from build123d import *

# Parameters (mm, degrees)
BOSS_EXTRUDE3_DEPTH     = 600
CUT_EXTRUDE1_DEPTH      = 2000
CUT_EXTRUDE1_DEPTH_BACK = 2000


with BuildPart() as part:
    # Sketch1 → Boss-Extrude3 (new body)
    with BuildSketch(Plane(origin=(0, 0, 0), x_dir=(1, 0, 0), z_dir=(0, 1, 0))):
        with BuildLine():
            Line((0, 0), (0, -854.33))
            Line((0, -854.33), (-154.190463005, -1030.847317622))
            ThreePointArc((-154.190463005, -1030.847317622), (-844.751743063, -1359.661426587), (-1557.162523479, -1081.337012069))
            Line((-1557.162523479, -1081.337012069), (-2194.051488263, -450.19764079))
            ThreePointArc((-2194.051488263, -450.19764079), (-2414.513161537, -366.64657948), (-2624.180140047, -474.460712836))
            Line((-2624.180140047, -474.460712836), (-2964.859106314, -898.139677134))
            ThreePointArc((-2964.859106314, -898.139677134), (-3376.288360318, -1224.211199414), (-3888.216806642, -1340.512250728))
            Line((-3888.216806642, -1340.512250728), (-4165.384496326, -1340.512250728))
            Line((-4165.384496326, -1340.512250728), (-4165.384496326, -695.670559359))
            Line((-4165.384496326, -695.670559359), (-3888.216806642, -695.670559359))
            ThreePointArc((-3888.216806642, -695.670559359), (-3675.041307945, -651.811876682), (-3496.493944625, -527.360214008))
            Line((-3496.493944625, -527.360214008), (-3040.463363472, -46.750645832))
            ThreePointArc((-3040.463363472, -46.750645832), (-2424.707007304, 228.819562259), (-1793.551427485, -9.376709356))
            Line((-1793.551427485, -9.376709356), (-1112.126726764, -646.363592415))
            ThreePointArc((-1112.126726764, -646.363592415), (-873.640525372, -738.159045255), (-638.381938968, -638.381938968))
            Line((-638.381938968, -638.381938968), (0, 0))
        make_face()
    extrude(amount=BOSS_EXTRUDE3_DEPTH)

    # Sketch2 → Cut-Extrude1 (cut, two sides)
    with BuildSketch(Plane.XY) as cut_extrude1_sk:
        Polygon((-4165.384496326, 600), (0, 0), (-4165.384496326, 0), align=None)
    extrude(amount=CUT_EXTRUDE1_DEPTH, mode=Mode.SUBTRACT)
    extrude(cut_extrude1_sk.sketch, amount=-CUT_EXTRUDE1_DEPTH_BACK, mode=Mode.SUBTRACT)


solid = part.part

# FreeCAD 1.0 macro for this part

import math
import FreeCAD as App
import Part
import Sketcher
from FreeCAD import Vector
Q = App.Units.Quantity


def add_polygon(sketch, points):
    """Adds a closed chain of lines whose ends are joined by coincident constraints."""
    first, n = sketch.GeometryCount, len(points)
    for a, b in zip(points, points[1:] + points[:1]):
        sketch.addGeometry(Part.LineSegment(App.Vector(*a, 0), App.Vector(*b, 0)), False)
    for i in range(n):
        sketch.addConstraint(Sketcher.Constraint("Coincident", first + i, 2, first + (i + 1) % n, 1))

doc = App.newDocument("Part")
body = doc.addObject("PartDesign::Body", "Body")

sketch1 = doc.addObject("Sketcher::SketchObject", "Sketch")
body.addObject(sketch1)
sketch1.AttachmentSupport = (doc.XZ_Plane, [""])
sketch1.MapMode = "FlatFace"
sketch1.addGeometry(Part.LineSegment(Vector(0, 854.33, 0), Vector(0, 0, 0)), False)
sketch1.addGeometry(Part.LineSegment(Vector(0, 0, 0), Vector(-638.381939, 638.381939, 0)), False)
sketch1.addGeometry(Part.ArcOfCircle(Part.Circle(Vector(-879.381939, 397.381939, 0), Vector(0, 0, 1), 340.825469), math.radians(45), math.radians(133.069544)), False)
sketch1.addGeometry(Part.LineSegment(Vector(-1112.126727, 646.363592, 0), Vector(-1793.551427, 9.376709, 0)), False)
sketch1.addGeometry(Part.ArcOfCircle(Part.Circle(Vector(-2398.180553, 656.186293, 0), Vector(0, 0, 1), 885.403308), math.radians(-136.503191), math.radians(-46.930456)), False)
sketch1.addGeometry(Part.LineSegment(Vector(-3040.463363, 46.750646, 0), Vector(-3496.493945, 527.360214, 0)), False)
sketch1.addGeometry(Part.ArcOfCircle(Part.Circle(Vector(-3888.216807, 155.670559, 0), Vector(0, 0, 1), 540), math.radians(43.496809), math.radians(90)), False)
sketch1.addGeometry(Part.LineSegment(Vector(-3888.216807, 695.670559, 0), Vector(-4165.384496, 695.670559, 0)), False)
sketch1.addGeometry(Part.LineSegment(Vector(-4165.384496, 695.670559, 0), Vector(-4165.384496, 1340.512251, 0)), False)
sketch1.addGeometry(Part.LineSegment(Vector(-4165.384496, 1340.512251, 0), Vector(-3888.216807, 1340.512251, 0)), False)
sketch1.addGeometry(Part.ArcOfCircle(Part.Circle(Vector(-3888.216807, 155.670559, 0), Vector(0, 0, 1), 1184.841691), math.radians(38.802656), math.radians(90)), False)
sketch1.addGeometry(Part.LineSegment(Vector(-2964.859106, 898.139677, 0), Vector(-2624.18014, 474.460713, 0)), False)
sketch1.addGeometry(Part.ArcOfCircle(Part.Circle(Vector(-2398.180553, 656.186293, 0), Vector(0, 0, 1), 290), math.radians(-141.197344), math.radians(-45.259793)), False)
sketch1.addGeometry(Part.LineSegment(Vector(-2194.051488, 450.197641, 0), Vector(-1557.162523, 1081.337012, 0)), False)
sketch1.addGeometry(Part.ArcOfCircle(Part.Circle(Vector(-879.381939, 397.381939, 0), Vector(0, 0, 1), 962.902416), math.radians(41.137689), math.radians(134.740207)), False)
sketch1.addGeometry(Part.LineSegment(Vector(-154.190463, 1030.847318, 0), Vector(0, 854.33, 0)), False)
sketch1.addConstraint(Sketcher.Constraint("Coincident", 0, 2, 1, 1))
sketch1.addConstraint(Sketcher.Constraint("Tangent", 1, 2, 2, 1))
sketch1.addConstraint(Sketcher.Constraint("Tangent", 2, 2, 3, 1))
sketch1.addConstraint(Sketcher.Constraint("Coincident", 3, 2, 4, 2))
sketch1.addConstraint(Sketcher.Constraint("Tangent", 4, 1, 5, 1))
sketch1.addConstraint(Sketcher.Constraint("Tangent", 5, 2, 6, 1))
sketch1.addConstraint(Sketcher.Constraint("Tangent", 6, 2, 7, 1))
sketch1.addConstraint(Sketcher.Constraint("Coincident", 7, 2, 8, 1))
sketch1.addConstraint(Sketcher.Constraint("Coincident", 8, 2, 9, 1))
sketch1.addConstraint(Sketcher.Constraint("Tangent", 9, 2, 10, 2))
sketch1.addConstraint(Sketcher.Constraint("Tangent", 10, 1, 11, 1))
sketch1.addConstraint(Sketcher.Constraint("Tangent", 11, 2, 12, 1))
sketch1.addConstraint(Sketcher.Constraint("Tangent", 12, 2, 13, 1))
sketch1.addConstraint(Sketcher.Constraint("Coincident", 13, 2, 14, 2))
sketch1.addConstraint(Sketcher.Constraint("Tangent", 14, 1, 15, 1))
sketch1.addConstraint(Sketcher.Constraint("Coincident", 15, 2, 0, 1))
sketch1.addConstraint(Sketcher.Constraint("Vertical", 0))
sketch1.addConstraint(Sketcher.Constraint("Horizontal", 7))
sketch1.addConstraint(Sketcher.Constraint("Vertical", 8))
sketch1.addConstraint(Sketcher.Constraint("Horizontal", 9))
sketch1.addConstraint(Sketcher.Constraint("Coincident", 0, 2, -1, 1))
sketch1.addConstraint(Sketcher.Constraint("Coincident", 10, 3, 6, 3))
sketch1.addConstraint(Sketcher.Constraint("Coincident", 12, 3, 4, 3))
sketch1.addConstraint(Sketcher.Constraint("Coincident", 14, 3, 2, 3))
sketch1.addConstraint(Sketcher.Constraint("Radius", 6, Q("540 mm")))
sketch1.addConstraint(Sketcher.Constraint("Radius", 12, Q("290 mm")))
sketch1.addConstraint(Sketcher.Constraint("Angle", 1, Q("135 deg")))
sketch1.addConstraint(Sketcher.Constraint("DistanceX", 2, 3, 1, 2, Q("241 mm")))
sketch1.addConstraint(Sketcher.Constraint("DistanceY", 0, 2, 0, 1, Q("854.33 mm")))
sketch1.addConstraint(Sketcher.Constraint("Radius", 10, Q("1184.841691 mm")))
sketch1.addConstraint(Sketcher.Constraint("Radius", 4, Q("885.403308 mm")))
sketch1.addConstraint(Sketcher.Constraint("Radius", 14, Q("962.902416 mm")))
sketch1.addConstraint(Sketcher.Constraint("Distance", 5, Q("662.532601 mm")))
sketch1.addConstraint(Sketcher.Constraint("DistanceX", 7, 2, 7, 1, Q("277.16769 mm")))
sketch1.addConstraint(Sketcher.Constraint("DistanceX", 3, 2, 2, 2, Q("681.424701 mm")))
sketch1.addConstraint(Sketcher.Constraint("DistanceY", 11, 2, 5, 2, Q("52.899501 mm")))
sketch1.addConstraint(Sketcher.Constraint("DistanceX", 2, 3, -1, 1, Q("879.381939 mm")))
sketch1.addConstraint(Sketcher.Constraint("DistanceY", -1, 1, 6, 3, Q("155.670559 mm")))
sketch1.addConstraint(Sketcher.Constraint("DistanceY", -1, 1, 3, 2, Q("9.376709 mm")))
sketch1.addConstraint(Sketcher.Constraint("DistanceY", 2, 2, 13, 2, Q("434.97342 mm")))
pad1 = doc.addObject("PartDesign::Pad", "Pad")
body.addObject(pad1)
pad1.Profile = sketch1
pad1.Length = 600
pad1.Reversed = True

sketch2 = doc.addObject("Sketcher::SketchObject", "Sketch001")
body.addObject(sketch2)
sketch2.AttachmentSupport = (doc.XY_Plane, [""])
sketch2.MapMode = "FlatFace"
add_polygon(sketch2, [(0, 0), (-4165.384496, 600), (-4165.384496, 0)])
sketch2.addConstraint(Sketcher.Constraint("Vertical", 1))
sketch2.addConstraint(Sketcher.Constraint("Horizontal", 2))
sketch2.addConstraint(Sketcher.Constraint("Coincident", 2, 2, -1, 1))
sketch2.addConstraint(Sketcher.Constraint("DistanceY", 1, 2, 1, 1, Q("600 mm")))
sketch2.addConstraint(Sketcher.Constraint("DistanceX", 2, 1, 2, 2, Q("4165.384496 mm")))
pocket1 = doc.addObject("PartDesign::Pocket", "Pocket")
body.addObject(pocket1)
pocket1.Profile = sketch2
pocket1.Type = "ThroughAll"
pocket1.Midplane = True

doc.recompute()
